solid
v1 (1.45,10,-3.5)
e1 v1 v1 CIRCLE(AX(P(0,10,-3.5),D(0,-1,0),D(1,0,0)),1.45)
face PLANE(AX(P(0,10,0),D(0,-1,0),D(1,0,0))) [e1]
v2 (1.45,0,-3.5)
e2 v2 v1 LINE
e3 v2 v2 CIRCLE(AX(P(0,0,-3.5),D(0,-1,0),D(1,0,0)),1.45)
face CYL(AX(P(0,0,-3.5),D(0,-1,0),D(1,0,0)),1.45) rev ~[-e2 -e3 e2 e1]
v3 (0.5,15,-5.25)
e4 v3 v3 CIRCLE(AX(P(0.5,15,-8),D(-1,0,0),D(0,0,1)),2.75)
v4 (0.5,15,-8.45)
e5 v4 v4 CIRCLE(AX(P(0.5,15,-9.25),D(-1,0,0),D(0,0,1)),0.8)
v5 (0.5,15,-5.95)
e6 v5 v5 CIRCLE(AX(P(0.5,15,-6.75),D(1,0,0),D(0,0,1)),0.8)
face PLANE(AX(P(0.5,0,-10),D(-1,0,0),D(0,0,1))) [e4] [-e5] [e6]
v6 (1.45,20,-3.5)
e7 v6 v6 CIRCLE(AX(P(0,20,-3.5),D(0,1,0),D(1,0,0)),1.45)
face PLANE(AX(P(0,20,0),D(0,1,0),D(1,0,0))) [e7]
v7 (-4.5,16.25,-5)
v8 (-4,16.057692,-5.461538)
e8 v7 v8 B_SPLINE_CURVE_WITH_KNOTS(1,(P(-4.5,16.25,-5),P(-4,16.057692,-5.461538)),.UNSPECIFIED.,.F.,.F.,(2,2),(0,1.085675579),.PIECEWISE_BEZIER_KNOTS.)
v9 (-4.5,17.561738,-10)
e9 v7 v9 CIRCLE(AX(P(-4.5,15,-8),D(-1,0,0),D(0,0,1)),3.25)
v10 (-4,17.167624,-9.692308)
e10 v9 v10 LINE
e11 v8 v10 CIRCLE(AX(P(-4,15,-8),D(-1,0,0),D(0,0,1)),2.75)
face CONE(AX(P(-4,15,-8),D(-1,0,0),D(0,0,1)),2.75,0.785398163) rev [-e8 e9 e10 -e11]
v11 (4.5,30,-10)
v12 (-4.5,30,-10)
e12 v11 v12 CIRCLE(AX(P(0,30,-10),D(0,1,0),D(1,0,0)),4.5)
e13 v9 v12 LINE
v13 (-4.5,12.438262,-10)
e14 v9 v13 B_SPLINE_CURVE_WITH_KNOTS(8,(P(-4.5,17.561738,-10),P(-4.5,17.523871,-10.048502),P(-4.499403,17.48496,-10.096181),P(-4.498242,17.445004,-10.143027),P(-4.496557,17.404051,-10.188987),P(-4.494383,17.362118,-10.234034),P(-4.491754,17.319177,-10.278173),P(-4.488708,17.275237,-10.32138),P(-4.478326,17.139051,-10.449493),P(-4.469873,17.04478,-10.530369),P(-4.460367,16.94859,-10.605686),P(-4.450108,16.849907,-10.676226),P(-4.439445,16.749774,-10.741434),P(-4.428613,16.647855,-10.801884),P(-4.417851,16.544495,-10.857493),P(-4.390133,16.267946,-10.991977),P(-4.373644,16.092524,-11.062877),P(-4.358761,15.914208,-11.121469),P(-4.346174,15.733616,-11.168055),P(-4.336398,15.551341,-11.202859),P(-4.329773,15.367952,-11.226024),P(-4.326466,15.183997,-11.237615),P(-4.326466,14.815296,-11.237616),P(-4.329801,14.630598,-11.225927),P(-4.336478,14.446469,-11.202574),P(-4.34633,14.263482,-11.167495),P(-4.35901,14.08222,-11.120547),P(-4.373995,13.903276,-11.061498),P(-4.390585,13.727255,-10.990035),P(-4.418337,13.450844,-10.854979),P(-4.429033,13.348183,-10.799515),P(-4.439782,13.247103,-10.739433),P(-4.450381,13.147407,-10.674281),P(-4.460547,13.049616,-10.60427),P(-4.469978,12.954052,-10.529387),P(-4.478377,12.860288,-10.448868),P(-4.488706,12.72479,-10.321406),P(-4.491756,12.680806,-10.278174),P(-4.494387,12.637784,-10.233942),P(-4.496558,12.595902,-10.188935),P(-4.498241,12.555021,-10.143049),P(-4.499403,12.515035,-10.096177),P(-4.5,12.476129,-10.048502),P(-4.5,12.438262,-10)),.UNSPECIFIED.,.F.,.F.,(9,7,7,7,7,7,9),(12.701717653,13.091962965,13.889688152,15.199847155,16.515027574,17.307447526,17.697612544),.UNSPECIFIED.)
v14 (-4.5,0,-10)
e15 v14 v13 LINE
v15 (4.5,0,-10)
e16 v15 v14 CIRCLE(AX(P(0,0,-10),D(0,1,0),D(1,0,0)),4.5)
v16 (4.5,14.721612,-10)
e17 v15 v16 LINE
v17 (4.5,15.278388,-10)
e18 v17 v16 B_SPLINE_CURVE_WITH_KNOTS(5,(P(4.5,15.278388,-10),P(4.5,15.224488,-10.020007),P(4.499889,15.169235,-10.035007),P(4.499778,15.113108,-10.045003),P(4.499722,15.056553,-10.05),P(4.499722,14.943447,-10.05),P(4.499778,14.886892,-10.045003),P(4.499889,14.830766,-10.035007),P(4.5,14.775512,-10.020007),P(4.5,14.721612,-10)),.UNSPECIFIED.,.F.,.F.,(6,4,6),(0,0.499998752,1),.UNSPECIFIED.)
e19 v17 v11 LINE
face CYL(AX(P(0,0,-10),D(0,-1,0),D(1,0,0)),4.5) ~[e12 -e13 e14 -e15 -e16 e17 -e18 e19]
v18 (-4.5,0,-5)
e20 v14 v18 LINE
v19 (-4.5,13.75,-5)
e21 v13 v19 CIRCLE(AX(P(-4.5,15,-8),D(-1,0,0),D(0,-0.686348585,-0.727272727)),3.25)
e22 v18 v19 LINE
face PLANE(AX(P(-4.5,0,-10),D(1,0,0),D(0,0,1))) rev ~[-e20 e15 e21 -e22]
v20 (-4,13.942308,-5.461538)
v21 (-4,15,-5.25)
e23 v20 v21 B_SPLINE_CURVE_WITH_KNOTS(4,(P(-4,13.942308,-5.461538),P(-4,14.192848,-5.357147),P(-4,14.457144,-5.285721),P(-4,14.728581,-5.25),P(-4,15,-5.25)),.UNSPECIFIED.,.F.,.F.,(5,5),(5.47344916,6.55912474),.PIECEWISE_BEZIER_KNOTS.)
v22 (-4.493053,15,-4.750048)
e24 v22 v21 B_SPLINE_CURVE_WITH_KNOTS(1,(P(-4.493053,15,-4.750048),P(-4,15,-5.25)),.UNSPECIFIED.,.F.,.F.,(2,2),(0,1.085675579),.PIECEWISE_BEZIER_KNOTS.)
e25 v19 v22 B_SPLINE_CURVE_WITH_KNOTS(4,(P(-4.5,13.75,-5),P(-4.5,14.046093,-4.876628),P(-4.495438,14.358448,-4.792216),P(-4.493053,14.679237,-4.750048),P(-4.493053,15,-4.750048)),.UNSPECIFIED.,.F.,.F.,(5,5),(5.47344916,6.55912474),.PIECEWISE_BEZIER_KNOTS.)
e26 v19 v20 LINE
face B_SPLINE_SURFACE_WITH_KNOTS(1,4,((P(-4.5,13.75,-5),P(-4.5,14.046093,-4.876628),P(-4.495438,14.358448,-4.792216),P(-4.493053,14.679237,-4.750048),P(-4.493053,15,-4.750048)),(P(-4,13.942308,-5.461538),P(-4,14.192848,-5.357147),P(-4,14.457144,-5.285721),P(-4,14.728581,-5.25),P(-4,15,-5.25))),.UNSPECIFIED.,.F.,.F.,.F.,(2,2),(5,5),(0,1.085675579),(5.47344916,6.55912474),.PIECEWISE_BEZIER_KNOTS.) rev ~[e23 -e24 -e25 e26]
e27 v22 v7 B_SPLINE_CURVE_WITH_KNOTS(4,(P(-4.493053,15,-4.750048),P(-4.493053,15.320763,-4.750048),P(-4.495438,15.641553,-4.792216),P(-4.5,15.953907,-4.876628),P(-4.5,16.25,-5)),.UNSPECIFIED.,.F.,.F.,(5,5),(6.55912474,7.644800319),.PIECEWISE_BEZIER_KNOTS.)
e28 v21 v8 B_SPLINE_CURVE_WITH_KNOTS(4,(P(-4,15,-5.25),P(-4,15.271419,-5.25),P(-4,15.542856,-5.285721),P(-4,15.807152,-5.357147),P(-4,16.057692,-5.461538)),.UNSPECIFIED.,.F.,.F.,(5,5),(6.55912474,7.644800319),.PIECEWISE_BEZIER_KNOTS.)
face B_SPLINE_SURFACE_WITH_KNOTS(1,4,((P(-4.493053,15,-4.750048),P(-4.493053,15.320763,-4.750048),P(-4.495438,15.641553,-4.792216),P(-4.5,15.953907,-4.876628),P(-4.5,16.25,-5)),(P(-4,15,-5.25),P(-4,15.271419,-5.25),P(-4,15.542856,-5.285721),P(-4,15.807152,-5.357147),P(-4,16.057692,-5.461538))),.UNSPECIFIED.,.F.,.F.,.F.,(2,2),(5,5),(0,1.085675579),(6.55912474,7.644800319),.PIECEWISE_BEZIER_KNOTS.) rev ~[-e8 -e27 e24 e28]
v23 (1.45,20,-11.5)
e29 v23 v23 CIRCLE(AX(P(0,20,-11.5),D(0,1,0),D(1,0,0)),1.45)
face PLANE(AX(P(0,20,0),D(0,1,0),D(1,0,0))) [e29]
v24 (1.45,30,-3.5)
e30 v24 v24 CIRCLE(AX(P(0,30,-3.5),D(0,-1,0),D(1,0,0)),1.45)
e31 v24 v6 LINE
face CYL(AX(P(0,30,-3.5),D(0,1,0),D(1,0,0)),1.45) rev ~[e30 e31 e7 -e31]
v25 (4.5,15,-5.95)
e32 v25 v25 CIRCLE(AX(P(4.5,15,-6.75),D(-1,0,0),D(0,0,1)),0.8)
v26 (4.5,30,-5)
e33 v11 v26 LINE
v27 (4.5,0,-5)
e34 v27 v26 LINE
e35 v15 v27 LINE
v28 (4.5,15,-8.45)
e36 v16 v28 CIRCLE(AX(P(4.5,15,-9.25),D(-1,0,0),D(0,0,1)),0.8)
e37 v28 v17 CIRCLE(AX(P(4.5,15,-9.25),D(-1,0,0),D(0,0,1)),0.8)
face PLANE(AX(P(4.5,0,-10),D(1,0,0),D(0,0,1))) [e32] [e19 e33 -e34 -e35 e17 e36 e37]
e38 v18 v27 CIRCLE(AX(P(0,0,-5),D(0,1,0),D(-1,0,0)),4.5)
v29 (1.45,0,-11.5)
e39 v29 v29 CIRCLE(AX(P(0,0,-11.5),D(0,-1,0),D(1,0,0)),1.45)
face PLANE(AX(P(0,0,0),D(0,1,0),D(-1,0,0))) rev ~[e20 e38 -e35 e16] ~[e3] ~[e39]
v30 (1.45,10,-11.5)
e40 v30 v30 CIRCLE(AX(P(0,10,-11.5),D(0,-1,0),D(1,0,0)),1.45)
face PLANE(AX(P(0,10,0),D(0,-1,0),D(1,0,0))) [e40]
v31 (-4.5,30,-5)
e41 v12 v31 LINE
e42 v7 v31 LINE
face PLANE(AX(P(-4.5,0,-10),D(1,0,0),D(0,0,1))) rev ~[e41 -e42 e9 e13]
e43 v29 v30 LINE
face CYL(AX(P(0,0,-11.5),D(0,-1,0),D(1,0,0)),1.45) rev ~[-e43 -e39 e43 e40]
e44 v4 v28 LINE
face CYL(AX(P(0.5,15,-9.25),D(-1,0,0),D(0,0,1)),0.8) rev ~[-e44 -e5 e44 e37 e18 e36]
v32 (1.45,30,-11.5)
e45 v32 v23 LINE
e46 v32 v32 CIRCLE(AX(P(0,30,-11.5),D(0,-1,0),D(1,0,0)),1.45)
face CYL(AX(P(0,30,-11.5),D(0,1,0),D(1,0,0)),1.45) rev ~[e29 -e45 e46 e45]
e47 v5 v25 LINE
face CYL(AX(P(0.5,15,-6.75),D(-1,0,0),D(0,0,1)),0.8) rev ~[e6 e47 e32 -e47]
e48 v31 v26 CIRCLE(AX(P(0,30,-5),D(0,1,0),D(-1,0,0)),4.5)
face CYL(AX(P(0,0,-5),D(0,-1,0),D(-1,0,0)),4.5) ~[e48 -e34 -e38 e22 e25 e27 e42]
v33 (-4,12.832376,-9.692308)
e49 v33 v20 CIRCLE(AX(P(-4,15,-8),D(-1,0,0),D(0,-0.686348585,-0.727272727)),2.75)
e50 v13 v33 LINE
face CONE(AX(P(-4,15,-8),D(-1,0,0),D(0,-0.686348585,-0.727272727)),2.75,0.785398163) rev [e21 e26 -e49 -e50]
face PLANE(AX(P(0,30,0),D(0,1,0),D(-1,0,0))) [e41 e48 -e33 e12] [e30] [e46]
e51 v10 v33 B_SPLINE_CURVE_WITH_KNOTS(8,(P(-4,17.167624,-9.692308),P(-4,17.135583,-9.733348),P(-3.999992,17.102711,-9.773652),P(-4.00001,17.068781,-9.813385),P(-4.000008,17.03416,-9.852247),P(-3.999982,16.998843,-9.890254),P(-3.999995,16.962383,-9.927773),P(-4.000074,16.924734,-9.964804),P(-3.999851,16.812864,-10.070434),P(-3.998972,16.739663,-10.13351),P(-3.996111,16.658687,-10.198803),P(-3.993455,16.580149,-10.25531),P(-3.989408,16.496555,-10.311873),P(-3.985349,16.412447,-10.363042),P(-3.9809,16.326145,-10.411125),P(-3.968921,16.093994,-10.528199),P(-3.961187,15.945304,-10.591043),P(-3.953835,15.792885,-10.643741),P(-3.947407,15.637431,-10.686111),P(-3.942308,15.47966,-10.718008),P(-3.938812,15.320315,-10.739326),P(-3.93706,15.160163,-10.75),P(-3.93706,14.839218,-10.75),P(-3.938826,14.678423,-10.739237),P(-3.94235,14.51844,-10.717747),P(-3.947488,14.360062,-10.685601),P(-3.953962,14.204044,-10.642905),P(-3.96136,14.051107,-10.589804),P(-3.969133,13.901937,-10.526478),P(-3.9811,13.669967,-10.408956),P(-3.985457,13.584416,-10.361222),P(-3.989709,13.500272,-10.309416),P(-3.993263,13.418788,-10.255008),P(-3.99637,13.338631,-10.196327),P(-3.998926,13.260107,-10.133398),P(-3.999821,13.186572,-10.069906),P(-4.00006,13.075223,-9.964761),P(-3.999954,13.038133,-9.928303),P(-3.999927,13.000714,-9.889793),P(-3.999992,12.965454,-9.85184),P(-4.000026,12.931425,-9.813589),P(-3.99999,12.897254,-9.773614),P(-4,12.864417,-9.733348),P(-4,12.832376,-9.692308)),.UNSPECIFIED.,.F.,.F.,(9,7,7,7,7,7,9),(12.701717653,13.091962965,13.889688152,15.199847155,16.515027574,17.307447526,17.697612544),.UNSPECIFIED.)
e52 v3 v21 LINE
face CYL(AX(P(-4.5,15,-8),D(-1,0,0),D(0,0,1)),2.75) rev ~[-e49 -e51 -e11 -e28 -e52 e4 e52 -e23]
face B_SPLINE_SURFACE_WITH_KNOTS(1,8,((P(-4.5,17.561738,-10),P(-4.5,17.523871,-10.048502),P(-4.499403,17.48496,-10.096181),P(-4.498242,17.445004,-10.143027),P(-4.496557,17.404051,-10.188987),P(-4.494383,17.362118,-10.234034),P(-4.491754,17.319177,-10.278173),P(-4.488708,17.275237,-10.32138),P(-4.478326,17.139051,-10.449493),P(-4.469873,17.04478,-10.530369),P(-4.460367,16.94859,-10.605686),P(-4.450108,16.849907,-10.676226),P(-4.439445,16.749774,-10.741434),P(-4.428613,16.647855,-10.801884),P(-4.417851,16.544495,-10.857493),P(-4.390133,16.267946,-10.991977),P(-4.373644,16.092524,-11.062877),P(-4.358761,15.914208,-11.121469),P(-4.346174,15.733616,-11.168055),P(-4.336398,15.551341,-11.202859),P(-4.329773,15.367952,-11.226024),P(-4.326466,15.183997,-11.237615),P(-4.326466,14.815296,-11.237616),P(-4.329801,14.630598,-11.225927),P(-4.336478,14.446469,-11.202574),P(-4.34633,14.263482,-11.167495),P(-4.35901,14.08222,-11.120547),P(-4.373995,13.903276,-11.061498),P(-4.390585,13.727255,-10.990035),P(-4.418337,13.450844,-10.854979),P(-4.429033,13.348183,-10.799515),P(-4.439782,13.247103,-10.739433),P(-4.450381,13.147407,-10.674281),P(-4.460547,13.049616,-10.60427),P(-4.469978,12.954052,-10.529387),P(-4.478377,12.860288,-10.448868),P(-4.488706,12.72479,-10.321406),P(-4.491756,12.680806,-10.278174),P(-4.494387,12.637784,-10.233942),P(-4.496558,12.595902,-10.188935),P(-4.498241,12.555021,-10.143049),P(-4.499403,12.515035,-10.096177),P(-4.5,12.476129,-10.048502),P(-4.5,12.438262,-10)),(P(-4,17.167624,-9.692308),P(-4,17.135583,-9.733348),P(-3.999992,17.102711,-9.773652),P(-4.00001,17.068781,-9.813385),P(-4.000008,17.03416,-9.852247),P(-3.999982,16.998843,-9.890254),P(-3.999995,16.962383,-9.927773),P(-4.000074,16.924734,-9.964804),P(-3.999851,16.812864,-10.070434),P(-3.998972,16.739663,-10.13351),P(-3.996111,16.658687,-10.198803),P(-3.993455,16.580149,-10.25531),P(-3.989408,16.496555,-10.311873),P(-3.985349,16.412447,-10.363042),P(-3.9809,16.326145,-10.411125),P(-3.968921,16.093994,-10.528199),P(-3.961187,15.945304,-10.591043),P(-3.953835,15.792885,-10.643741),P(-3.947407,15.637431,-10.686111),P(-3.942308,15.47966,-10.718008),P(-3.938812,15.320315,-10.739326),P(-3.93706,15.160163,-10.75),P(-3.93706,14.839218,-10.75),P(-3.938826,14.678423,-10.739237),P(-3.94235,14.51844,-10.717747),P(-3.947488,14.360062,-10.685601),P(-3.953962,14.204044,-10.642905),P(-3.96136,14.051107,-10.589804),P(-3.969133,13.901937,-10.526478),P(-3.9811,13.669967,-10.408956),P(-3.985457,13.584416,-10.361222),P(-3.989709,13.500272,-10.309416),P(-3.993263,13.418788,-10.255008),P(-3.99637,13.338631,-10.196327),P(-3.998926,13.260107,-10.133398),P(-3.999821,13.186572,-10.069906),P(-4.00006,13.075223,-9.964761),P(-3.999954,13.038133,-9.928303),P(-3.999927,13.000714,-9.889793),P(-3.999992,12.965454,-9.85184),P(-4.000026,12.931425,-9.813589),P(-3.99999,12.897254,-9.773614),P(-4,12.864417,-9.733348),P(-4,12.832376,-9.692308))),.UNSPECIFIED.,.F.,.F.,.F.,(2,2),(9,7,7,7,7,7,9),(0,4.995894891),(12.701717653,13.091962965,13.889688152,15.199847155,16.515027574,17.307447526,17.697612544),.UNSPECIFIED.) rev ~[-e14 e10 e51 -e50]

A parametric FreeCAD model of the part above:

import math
import FreeCAD as App
import Part
import Sketcher
Q = App.Units.Quantity


def edges_at(feature, points):
    """Names of the edges that pass closest to the given points."""
    edges = feature.Shape.Edges
    near = lambda p: min(range(len(edges)), key=lambda i: edges[i].distToShape(Part.Vertex(*p))[0])
    return sorted({f"Edge{near(p) + 1}" for p in points})

doc = App.newDocument("Part")
body = doc.addObject("PartDesign::Body", "Body")

sketch1 = body.newObject("Sketcher::SketchObject", "Sketch")
sketch1.AttachmentSupport = (doc.getObject("XZ_Plane"), [""])
sketch1.MapMode = "FlatFace"
sketch1.addGeometry(Part.LineSegment(App.Vector(4.5, -5, 0), App.Vector(4.5, -10, 0)), False)
sketch1.addGeometry(Part.ArcOfCircle(Part.Circle(App.Vector(0, -10, 0), App.Vector(0, 0, 1), 4.5), math.radians(180), math.radians(360)), False)
sketch1.addGeometry(Part.LineSegment(App.Vector(-4.5, -10, 0), App.Vector(-4.5, -5, 0)), False)
sketch1.addGeometry(Part.ArcOfCircle(Part.Circle(App.Vector(0, -5, 0), App.Vector(0, 0, 1), 4.5), math.radians(0), math.radians(180)), False)
sketch1.addConstraint(Sketcher.Constraint("Tangent", 0, 2, 1, 2))
sketch1.addConstraint(Sketcher.Constraint("Tangent", 1, 1, 2, 1))
sketch1.addConstraint(Sketcher.Constraint("Tangent", 2, 2, 3, 2))
sketch1.addConstraint(Sketcher.Constraint("Tangent", 3, 1, 0, 1))
sketch1.addConstraint(Sketcher.Constraint("Vertical", 0))
sketch1.addConstraint(Sketcher.Constraint("Vertical", 2))
sketch1.addConstraint(Sketcher.Constraint("PointOnObject", 1, 3, -2))
sketch1.addConstraint(Sketcher.Constraint("DistanceY", 0, 2, 0, 1, Q("5 mm")))
sketch1.addConstraint(Sketcher.Constraint("DistanceY", 3, 3, -1, 1, Q("5 mm")))
sketch1.addConstraint(Sketcher.Constraint("Radius", 1, Q("4.5 mm")))
pad1 = body.newObject("PartDesign::Pad", "Pad")
pad1.Profile = sketch1
pad1.Length = 30
pad1.Reversed = True

sketch2 = body.newObject("Sketcher::SketchObject", "Sketch001")
sketch2.AttachmentSupport = (doc.getObject("YZ_Plane"), [""])
sketch2.MapMode = "FlatFace"
sketch2.AttachmentOffset = App.Placement(App.Vector(0, 0, -4.5), App.Rotation())
sketch2.addGeometry(Part.Circle(App.Vector(15, -8, 0), App.Vector(0, 0, 1), 2.8), False)
sketch2.addConstraint(Sketcher.Constraint("Diameter", 0, Q("5.5 mm")))
sketch2.addConstraint(Sketcher.Constraint("DistanceX", -1, 1, 0, 3, Q("15 mm")))
sketch2.addConstraint(Sketcher.Constraint("DistanceY", 0, 3, -1, 1, Q("8 mm")))
pocket1 = body.newObject("PartDesign::Pocket", "Pocket")
pocket1.Profile = sketch2
pocket1.Type = "TwoLengths"
pocket1.Length = 5
pocket1.Length2 = 5
pocket1.Reversed = True

sketch3 = body.newObject("Sketcher::SketchObject", "Sketch002")
sketch3.AttachmentSupport = (doc.getObject("XZ_Plane"), [""])
sketch3.MapMode = "FlatFace"
sketch3.AttachmentOffset = App.Placement(App.Vector(0, 0, -30), App.Rotation())
sketch3.addGeometry(Part.Circle(App.Vector(0, -11.5, 0), App.Vector(0, 0, 1), 1.4), False)
sketch3.addGeometry(Part.Circle(App.Vector(0, -3.5, 0), App.Vector(0, 0, 1), 1.4), False)
sketch3.addConstraint(Sketcher.Constraint("Equal", 0, 1))
sketch3.addConstraint(Sketcher.Constraint("PointOnObject", 0, 3, -2))
sketch3.addConstraint(Sketcher.Constraint("PointOnObject", 1, 3, -2))
sketch3.addConstraint(Sketcher.Constraint("Diameter", 0, Q("2.9 mm")))
sketch3.addConstraint(Sketcher.Constraint("DistanceY", 0, 3, 1, 3, Q("8 mm")))
sketch3.addConstraint(Sketcher.Constraint("DistanceY", 0, 3, -1, 1, Q("11.5 mm")))
pocket2 = body.newObject("PartDesign::Pocket", "Pocket001")
pocket2.Profile = sketch3
pocket2.Length = 10
pocket2.Reversed = True

sketch4 = body.newObject("Sketcher::SketchObject", "Sketch003")
sketch4.AttachmentSupport = (doc.getObject("XZ_Plane"), [""])
sketch4.MapMode = "FlatFace"
sketch4.addGeometry(Part.Circle(App.Vector(0, -11.5, 0), App.Vector(0, 0, 1), 1.4), False)
sketch4.addGeometry(Part.Circle(App.Vector(0, -3.5, 0), App.Vector(0, 0, 1), 1.4), False)
sketch4.addConstraint(Sketcher.Constraint("Equal", 0, 1))
sketch4.addConstraint(Sketcher.Constraint("PointOnObject", 0, 3, -2))
sketch4.addConstraint(Sketcher.Constraint("PointOnObject", 1, 3, -2))
sketch4.addConstraint(Sketcher.Constraint("Diameter", 0, Q("2.9 mm")))
sketch4.addConstraint(Sketcher.Constraint("DistanceY", 0, 3, 1, 3, Q("8 mm")))
sketch4.addConstraint(Sketcher.Constraint("DistanceY", 0, 3, -1, 1, Q("11.5 mm")))
pocket3 = body.newObject("PartDesign::Pocket", "Pocket002")
pocket3.Profile = sketch4
pocket3.Length = 10

sketch5 = body.newObject("Sketcher::SketchObject", "Sketch004")
sketch5.AttachmentSupport = (doc.getObject("YZ_Plane"), [""])
sketch5.MapMode = "FlatFace"
sketch5.AttachmentOffset = App.Placement(App.Vector(0, 0, 0.5), App.Rotation())
sketch5.addGeometry(Part.Circle(App.Vector(15, -9.2, 0), App.Vector(0, 0, 1), 0.8), False)
sketch5.addGeometry(Part.Circle(App.Vector(15, -6.8, 0), App.Vector(0, 0, 1), 0.8), False)
sketch5.addConstraint(Sketcher.Constraint("Equal", 0, 1))
sketch5.addConstraint(Sketcher.Constraint("Vertical", 0, 3, 1, 3))
sketch5.addConstraint(Sketcher.Constraint("Diameter", 0, Q("1.6 mm")))
sketch5.addConstraint(Sketcher.Constraint("DistanceX", -1, 1, 0, 3, Q("15 mm")))
sketch5.addConstraint(Sketcher.Constraint("DistanceY", 0, 3, 1, 3, Q("2.5 mm")))
sketch5.addConstraint(Sketcher.Constraint("DistanceY", 0, 3, -1, 1, Q("9.25 mm")))
pocket4 = body.newObject("PartDesign::Pocket", "Pocket003")
pocket4.Profile = sketch5
pocket4.Type = "ThroughAll"
pocket4.Reversed = True
doc.recompute()

chamfer = body.newObject("PartDesign::Chamfer", "Chamfer")
chamfer.Base = (pocket4, edges_at(pocket4, [(-4.5, 12.444, -6.984), (-4.5, 17.556, -6.984), (-4.437, 15, -10.75)]))
chamfer.Size = 0.5

doc.recompute()
